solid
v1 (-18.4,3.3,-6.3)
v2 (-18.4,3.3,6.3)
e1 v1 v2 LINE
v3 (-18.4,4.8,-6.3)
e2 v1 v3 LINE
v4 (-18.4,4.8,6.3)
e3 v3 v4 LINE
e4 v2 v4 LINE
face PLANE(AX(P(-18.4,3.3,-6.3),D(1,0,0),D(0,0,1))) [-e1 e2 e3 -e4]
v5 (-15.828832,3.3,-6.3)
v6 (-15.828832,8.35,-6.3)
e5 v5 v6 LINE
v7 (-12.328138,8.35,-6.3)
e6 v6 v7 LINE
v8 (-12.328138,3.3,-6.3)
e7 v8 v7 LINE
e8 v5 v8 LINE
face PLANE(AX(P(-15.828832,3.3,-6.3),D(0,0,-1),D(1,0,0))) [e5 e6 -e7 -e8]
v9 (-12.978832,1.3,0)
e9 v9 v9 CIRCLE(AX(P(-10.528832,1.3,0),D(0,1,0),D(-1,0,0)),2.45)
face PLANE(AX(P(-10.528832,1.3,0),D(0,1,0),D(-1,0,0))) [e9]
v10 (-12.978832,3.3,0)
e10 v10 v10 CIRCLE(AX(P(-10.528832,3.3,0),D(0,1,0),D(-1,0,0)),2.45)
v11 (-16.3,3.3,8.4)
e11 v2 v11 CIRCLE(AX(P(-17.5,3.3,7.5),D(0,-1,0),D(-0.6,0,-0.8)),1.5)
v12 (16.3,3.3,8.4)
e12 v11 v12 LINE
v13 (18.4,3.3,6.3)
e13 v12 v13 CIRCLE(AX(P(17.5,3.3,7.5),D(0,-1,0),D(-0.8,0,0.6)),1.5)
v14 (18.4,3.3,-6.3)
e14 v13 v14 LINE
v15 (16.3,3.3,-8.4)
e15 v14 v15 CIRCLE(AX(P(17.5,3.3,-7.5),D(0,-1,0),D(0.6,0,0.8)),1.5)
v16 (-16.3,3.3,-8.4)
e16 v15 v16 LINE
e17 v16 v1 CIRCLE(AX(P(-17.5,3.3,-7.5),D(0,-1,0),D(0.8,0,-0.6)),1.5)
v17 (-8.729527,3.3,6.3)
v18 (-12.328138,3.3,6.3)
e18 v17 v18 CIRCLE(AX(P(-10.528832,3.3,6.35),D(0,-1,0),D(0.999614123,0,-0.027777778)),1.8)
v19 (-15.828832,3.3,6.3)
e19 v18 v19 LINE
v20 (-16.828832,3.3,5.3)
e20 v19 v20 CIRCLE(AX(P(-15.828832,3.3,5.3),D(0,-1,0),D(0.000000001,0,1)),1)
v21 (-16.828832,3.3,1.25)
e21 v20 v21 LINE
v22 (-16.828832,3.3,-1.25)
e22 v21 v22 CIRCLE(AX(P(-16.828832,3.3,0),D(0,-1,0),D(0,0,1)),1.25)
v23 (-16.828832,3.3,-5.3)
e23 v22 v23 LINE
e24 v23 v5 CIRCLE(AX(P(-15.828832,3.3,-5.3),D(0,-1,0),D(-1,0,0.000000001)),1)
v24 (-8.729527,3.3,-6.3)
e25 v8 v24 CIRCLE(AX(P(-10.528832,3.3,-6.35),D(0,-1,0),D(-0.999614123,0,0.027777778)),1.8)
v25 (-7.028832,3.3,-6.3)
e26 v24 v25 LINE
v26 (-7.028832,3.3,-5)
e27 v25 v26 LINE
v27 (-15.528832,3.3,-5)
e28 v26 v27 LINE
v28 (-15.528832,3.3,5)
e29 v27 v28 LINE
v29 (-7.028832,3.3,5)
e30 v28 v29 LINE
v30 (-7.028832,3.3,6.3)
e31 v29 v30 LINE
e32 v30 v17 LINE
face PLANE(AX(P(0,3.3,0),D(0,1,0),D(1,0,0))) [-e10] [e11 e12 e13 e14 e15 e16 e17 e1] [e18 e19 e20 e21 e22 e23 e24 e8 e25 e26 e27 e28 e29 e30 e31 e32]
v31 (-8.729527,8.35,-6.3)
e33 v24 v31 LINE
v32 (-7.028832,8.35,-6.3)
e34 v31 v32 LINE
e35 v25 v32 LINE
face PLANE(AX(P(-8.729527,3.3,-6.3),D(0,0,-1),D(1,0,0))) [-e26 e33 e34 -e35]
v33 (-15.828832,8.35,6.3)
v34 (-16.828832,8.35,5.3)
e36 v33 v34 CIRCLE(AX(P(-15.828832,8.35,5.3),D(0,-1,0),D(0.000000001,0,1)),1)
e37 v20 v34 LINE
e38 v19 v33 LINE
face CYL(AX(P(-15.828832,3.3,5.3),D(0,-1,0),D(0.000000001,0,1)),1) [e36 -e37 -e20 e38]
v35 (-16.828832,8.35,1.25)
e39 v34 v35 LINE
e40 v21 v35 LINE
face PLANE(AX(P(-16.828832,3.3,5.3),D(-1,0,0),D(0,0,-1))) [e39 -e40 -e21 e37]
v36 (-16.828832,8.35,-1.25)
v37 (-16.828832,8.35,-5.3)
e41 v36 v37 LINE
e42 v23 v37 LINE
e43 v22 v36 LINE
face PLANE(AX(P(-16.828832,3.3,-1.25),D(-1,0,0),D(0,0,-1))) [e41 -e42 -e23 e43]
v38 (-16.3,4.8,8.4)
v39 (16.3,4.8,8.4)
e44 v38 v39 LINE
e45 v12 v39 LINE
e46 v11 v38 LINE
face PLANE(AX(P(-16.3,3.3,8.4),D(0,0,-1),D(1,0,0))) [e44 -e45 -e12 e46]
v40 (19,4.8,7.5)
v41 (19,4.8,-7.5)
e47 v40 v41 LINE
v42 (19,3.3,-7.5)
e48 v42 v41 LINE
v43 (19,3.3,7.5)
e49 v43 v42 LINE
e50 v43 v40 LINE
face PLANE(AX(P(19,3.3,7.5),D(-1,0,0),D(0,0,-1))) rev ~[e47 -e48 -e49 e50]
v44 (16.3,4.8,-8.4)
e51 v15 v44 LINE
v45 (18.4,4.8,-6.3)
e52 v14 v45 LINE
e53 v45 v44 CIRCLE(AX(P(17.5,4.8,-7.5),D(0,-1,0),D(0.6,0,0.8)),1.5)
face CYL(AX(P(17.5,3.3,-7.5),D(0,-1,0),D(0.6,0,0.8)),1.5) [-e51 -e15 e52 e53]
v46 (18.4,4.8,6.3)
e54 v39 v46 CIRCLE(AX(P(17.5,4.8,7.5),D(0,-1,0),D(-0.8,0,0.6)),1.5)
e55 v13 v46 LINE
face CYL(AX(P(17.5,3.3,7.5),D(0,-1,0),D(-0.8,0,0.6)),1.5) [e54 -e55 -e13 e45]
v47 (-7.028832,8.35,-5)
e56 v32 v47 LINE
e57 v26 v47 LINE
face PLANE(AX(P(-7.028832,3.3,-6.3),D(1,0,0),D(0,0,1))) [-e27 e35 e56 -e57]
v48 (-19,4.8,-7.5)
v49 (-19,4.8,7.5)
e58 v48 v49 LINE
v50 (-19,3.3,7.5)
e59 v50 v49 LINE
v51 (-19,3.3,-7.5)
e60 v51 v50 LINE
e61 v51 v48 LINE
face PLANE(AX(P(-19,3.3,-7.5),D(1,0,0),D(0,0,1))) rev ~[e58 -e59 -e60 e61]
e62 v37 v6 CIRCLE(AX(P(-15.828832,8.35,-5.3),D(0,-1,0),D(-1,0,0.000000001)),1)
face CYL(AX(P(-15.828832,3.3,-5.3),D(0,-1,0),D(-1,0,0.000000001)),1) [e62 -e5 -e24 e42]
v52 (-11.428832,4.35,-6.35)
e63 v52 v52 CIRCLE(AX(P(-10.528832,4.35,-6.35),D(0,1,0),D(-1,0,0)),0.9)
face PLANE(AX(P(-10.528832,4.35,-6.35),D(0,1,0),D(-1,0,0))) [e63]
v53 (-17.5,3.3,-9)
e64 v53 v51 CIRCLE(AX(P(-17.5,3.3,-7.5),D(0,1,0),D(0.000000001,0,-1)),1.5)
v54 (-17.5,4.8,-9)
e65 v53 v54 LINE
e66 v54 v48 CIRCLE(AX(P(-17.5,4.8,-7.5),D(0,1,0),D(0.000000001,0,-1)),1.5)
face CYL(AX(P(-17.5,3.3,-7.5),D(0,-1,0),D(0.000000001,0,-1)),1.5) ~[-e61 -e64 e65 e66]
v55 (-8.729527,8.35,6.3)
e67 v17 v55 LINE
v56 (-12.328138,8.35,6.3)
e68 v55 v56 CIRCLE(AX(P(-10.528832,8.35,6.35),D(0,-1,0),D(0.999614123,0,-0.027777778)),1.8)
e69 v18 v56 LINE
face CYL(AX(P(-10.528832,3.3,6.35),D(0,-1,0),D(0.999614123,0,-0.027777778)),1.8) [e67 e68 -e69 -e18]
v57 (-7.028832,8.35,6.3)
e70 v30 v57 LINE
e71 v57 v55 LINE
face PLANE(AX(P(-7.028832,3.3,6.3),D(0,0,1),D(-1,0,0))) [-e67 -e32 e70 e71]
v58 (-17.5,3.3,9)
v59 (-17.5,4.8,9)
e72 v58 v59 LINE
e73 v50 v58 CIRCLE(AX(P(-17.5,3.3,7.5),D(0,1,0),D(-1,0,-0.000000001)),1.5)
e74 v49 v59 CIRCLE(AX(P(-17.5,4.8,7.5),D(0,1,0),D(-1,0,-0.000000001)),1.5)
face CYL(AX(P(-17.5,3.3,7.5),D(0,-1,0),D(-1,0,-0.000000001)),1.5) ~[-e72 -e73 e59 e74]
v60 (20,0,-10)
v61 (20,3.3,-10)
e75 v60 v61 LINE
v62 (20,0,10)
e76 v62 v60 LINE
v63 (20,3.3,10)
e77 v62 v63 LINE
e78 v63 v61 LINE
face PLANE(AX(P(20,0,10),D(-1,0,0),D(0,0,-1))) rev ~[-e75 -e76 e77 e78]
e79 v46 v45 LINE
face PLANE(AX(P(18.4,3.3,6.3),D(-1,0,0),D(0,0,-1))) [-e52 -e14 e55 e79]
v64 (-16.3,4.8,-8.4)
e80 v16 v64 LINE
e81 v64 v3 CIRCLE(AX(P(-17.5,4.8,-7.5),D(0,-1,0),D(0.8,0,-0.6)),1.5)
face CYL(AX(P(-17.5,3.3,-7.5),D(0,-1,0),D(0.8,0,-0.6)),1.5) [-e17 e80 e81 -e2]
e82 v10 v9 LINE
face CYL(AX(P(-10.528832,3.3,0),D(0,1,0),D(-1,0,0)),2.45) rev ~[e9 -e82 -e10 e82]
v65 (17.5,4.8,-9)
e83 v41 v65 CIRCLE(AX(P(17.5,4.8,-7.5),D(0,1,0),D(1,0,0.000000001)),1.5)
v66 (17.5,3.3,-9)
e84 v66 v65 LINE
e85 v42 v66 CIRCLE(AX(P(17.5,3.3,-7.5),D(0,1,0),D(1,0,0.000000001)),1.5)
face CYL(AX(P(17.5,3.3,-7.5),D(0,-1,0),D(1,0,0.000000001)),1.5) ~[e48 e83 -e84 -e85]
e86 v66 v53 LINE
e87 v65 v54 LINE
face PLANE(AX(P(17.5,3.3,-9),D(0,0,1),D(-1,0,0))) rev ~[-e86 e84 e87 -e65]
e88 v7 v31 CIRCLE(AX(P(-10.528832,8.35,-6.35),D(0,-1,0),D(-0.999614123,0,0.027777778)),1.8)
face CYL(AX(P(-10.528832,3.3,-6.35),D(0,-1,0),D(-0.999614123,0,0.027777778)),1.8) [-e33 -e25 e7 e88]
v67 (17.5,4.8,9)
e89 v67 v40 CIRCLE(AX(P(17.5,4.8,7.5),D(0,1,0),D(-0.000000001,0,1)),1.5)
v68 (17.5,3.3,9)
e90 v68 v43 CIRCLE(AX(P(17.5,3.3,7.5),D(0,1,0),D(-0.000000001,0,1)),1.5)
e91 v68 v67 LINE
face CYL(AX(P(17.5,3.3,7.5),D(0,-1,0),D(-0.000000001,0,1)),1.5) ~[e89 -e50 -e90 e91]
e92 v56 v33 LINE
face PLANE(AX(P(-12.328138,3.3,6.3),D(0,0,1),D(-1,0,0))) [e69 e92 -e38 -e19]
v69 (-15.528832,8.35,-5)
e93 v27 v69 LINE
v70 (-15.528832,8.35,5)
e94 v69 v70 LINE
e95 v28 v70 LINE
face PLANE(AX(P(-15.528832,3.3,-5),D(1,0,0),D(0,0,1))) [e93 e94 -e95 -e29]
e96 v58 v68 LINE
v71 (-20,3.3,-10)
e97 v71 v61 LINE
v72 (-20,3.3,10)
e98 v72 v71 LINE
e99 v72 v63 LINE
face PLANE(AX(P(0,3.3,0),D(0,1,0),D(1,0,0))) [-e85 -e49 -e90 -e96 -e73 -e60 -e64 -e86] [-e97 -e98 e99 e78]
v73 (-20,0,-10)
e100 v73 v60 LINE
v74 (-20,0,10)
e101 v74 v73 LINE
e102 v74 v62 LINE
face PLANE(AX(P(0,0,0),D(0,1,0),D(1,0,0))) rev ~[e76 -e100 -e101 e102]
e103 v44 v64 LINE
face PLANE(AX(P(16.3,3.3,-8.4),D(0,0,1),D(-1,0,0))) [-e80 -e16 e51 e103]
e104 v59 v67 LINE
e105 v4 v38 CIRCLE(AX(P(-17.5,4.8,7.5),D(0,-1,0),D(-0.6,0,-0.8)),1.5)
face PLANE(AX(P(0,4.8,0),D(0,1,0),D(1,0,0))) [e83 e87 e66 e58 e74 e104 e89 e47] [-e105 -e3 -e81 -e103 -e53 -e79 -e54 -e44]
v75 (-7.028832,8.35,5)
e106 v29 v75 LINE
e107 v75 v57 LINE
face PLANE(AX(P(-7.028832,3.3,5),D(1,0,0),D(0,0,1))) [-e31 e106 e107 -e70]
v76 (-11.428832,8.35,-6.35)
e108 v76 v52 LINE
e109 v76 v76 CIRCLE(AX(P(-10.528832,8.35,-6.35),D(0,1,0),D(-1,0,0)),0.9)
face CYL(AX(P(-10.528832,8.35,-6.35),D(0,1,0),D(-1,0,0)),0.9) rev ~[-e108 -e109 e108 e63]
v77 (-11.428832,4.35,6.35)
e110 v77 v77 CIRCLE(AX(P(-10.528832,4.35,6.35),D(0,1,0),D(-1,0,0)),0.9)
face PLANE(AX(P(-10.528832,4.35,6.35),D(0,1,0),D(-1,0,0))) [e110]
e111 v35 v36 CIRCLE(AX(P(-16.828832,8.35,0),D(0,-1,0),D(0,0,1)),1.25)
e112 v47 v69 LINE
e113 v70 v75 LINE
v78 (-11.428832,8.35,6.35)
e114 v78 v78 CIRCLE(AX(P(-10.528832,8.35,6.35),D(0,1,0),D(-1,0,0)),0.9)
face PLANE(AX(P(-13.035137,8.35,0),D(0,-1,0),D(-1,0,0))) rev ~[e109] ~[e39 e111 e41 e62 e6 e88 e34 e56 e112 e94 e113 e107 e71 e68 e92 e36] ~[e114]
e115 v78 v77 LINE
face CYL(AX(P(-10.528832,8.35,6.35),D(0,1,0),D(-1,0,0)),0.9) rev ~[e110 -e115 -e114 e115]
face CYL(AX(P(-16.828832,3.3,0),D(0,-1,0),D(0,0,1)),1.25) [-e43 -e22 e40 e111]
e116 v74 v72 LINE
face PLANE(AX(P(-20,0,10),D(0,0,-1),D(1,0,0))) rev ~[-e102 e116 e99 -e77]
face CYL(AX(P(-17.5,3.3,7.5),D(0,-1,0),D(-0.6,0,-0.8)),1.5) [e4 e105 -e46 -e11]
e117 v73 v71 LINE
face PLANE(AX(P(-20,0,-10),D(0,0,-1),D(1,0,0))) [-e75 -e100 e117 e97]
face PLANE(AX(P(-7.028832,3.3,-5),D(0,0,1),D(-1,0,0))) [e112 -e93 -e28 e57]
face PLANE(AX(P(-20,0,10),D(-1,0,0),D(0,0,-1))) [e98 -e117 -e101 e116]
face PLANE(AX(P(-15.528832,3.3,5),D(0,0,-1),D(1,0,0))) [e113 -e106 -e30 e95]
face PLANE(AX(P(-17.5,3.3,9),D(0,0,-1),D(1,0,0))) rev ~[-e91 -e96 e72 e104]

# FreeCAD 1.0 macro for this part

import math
import FreeCAD as App
import Part
import Sketcher
Q = App.Units.Quantity

doc = App.newDocument("Part")
body = doc.addObject("PartDesign::Body", "Body")

# Sketch on XZ plane
sketch1 = doc.addObject("Sketcher::SketchObject", "Sketch")
body.addObject(sketch1)
sketch1.AttachmentSupport = (doc.XZ_Plane, [""])
sketch1.MapMode = "FlatFace"
sketch1.addGeometry([
    Part.LineSegment(App.Vector(-20, -10, 0), App.Vector(-20, 10, 0)),
    Part.LineSegment(App.Vector(-20, 10, 0), App.Vector(20, 10, 0)),
    Part.LineSegment(App.Vector(20, 10, 0), App.Vector(20, -10, 0)),
    Part.LineSegment(App.Vector(20, -10, 0), App.Vector(-20, -10, 0)),
], False)
sketch1.addConstraint([
    Sketcher.Constraint("Coincident", 0, 2, 1, 1),
    Sketcher.Constraint("Coincident", 1, 2, 2, 1),
    Sketcher.Constraint("Coincident", 2, 2, 3, 1),
    Sketcher.Constraint("Coincident", 3, 2, 0, 1),
    Sketcher.Constraint("Vertical", 0),
    Sketcher.Constraint("Horizontal", 1),
    Sketcher.Constraint("Vertical", 2),
    Sketcher.Constraint("Horizontal", 3),
    Sketcher.Constraint("Symmetric", 0, 2, 2, 2, -1, 1),
    Sketcher.Constraint("DistanceX", 1, 1, 1, 2, Q("40 mm")),
    Sketcher.Constraint("DistanceY", 0, 1, 0, 2, Q("20 mm")),
])
pad1 = doc.addObject("PartDesign::Pad", "Pad")
body.addObject(pad1)
pad1.Profile = sketch1
pad1.Length = 3.3
pad1.Reversed = True

# Sketch on XZ plane
sketch2 = doc.addObject("Sketcher::SketchObject", "Sketch001")
body.addObject(sketch2)
sketch2.AttachmentSupport = (doc.XZ_Plane, [""])
sketch2.MapMode = "FlatFace"
sketch2.AttachmentOffset = App.Placement(App.Vector(0, 0, -3.3), App.Rotation())
sketch2.addGeometry([
    Part.LineSegment(App.Vector(-19, -7.5, 0), App.Vector(-19, 7.5, 0)),  # 0
    Part.ArcOfCircle(Part.Circle(App.Vector(-17.5, 7.5, 0), App.Vector(0, 0, 1), 1.5), math.radians(90), math.radians(180)),  # 1
    Part.LineSegment(App.Vector(-17.5, 9, 0), App.Vector(17.5, 9, 0)),  # 2
    Part.ArcOfCircle(Part.Circle(App.Vector(17.5, 7.5, 0), App.Vector(0, 0, 1), 1.5), math.radians(0), math.radians(90)),  # 3
    Part.LineSegment(App.Vector(19, 7.5, 0), App.Vector(19, -7.5, 0)),  # 4
    Part.ArcOfCircle(Part.Circle(App.Vector(17.5, -7.5, 0), App.Vector(0, 0, 1), 1.5), math.radians(-90), math.radians(0)),  # 5
    Part.LineSegment(App.Vector(17.5, -9, 0), App.Vector(-17.5, -9, 0)),  # 6
    Part.ArcOfCircle(Part.Circle(App.Vector(-17.5, -7.5, 0), App.Vector(0, 0, 1), 1.5), math.radians(180), math.radians(270)),  # 7
    Part.LineSegment(App.Vector(-18.4, 6.3, 0), App.Vector(-18.4, -6.3, 0)),  # 8
    Part.ArcOfCircle(Part.Circle(App.Vector(-17.5, -7.5, 0), App.Vector(0, 0, 1), 1.5), math.radians(-37), math.radians(127)),  # 9
    Part.LineSegment(App.Vector(-16.3, -8.4, 0), App.Vector(16.3, -8.4, 0)),  # 10
    Part.ArcOfCircle(Part.Circle(App.Vector(17.5, -7.5, 0), App.Vector(0, 0, 1), 1.5), math.radians(53), math.radians(217)),  # 11
    Part.LineSegment(App.Vector(18.4, -6.3, 0), App.Vector(18.4, 6.3, 0)),  # 12
    Part.ArcOfCircle(Part.Circle(App.Vector(17.5, 7.5, 0), App.Vector(0, 0, 1), 1.5), math.radians(143), math.radians(307)),  # 13
    Part.LineSegment(App.Vector(16.3, 8.4, 0), App.Vector(-16.3, 8.4, 0)),  # 14
    Part.ArcOfCircle(Part.Circle(App.Vector(-17.5, 7.5, 0), App.Vector(0, 0, 1), 1.5), math.radians(-127), math.radians(37)),  # 15
], False)
sketch2.addConstraint([
    Sketcher.Constraint("Tangent", 0, 2, 1, 2),
    Sketcher.Constraint("Tangent", 1, 1, 2, 1),
    Sketcher.Constraint("Tangent", 2, 2, 3, 2),
    Sketcher.Constraint("Tangent", 3, 1, 4, 1),
    Sketcher.Constraint("Tangent", 4, 2, 5, 2),
    Sketcher.Constraint("Tangent", 5, 1, 6, 1),
    Sketcher.Constraint("Tangent", 6, 2, 7, 2),
    Sketcher.Constraint("Tangent", 7, 1, 0, 1),
    Sketcher.Constraint("Coincident", 8, 2, 9, 2),
    Sketcher.Constraint("Coincident", 9, 1, 10, 1),
    Sketcher.Constraint("Coincident", 10, 2, 11, 2),
    Sketcher.Constraint("Coincident", 11, 1, 12, 1),
    Sketcher.Constraint("Coincident", 12, 2, 13, 2),
    Sketcher.Constraint("Coincident", 13, 1, 14, 1),
    Sketcher.Constraint("Coincident", 14, 2, 15, 2),
    Sketcher.Constraint("Coincident", 15, 1, 8, 1),
    Sketcher.Constraint("Vertical", 0),
    Sketcher.Constraint("Horizontal", 2),
    Sketcher.Constraint("Vertical", 4),
    Sketcher.Constraint("Horizontal", 6),
    Sketcher.Constraint("Vertical", 8),
    Sketcher.Constraint("Horizontal", 10),
    Sketcher.Constraint("Vertical", 12),
    Sketcher.Constraint("Horizontal", 14),
    Sketcher.Constraint("Coincident", 9, 3, 7, 3),
    Sketcher.Constraint("Coincident", 11, 3, 5, 3),
    Sketcher.Constraint("Coincident", 13, 3, 3, 3),
    Sketcher.Constraint("Coincident", 15, 3, 1, 3),
    Sketcher.Constraint("Equal", 1, 3),
    Sketcher.Constraint("Equal", 3, 5),
    Sketcher.Constraint("Equal", 5, 7),
    Sketcher.Constraint("Equal", 7, 9),
    Sketcher.Constraint("Equal", 9, 11),
    Sketcher.Constraint("Equal", 11, 13),
    Sketcher.Constraint("Equal", 13, 15),
    Sketcher.Constraint("Symmetric", 1, 3, 5, 3, -1, 1),
    Sketcher.Constraint("Horizontal", 8, 2, 11, 1),
    Sketcher.Constraint("Vertical", 10, 2, 13, 1),
    Sketcher.Constraint("Radius", 1, Q("1.5 mm")),
    Sketcher.Constraint("DistanceX", 2, 1, 2, 2, Q("35 mm")),
    Sketcher.Constraint("DistanceY", 0, 1, 0, 2, Q("15 mm")),
    Sketcher.Constraint("DistanceX", 10, 1, 10, 2, Q("32.6 mm")),
    Sketcher.Constraint("DistanceY", 8, 2, 8, 1, Q("12.6 mm")),
])
pad2 = doc.addObject("PartDesign::Pad", "Pad001")
body.addObject(pad2)
pad2.Profile = sketch2
pad2.Length = 1.5
pad2.Reversed = True

# Sketch on XZ plane
sketch3 = doc.addObject("Sketcher::SketchObject", "Sketch002")
body.addObject(sketch3)
sketch3.AttachmentSupport = (doc.XZ_Plane, [""])
sketch3.MapMode = "FlatFace"
sketch3.AttachmentOffset = App.Placement(App.Vector(0, 0, -3.3), App.Rotation())
sketch3.addGeometry(Part.Circle(App.Vector(-10.5, 0, 0), App.Vector(0, 0, 1), 2.5), False)
sketch3.addConstraint([
    Sketcher.Constraint("PointOnObject", 0, 3, -1),
    Sketcher.Constraint("Diameter", 0, Q("4.9 mm")),
    Sketcher.Constraint("DistanceX", 0, 3, -1, 1, Q("10.528832 mm")),
])
pocket1 = doc.addObject("PartDesign::Pocket", "Pocket")
body.addObject(pocket1)
pocket1.Profile = sketch3
pocket1.Length = 2
pocket1.Reversed = True

# Sketch on XZ plane
sketch4 = doc.addObject("Sketcher::SketchObject", "Sketch003")
body.addObject(sketch4)
sketch4.AttachmentSupport = (doc.XZ_Plane, [""])
sketch4.MapMode = "FlatFace"
sketch4.AttachmentOffset = App.Placement(App.Vector(0, 0, -3.3), App.Rotation())
sketch4.addGeometry([
    Part.LineSegment(App.Vector(-7, 5, 0), App.Vector(-15.5, 5, 0)),  # 0
    Part.LineSegment(App.Vector(-15.5, 5, 0), App.Vector(-15.5, -5, 0)),  # 1
    Part.LineSegment(App.Vector(-15.5, -5, 0), App.Vector(-7, -5, 0)),  # 2
    Part.LineSegment(App.Vector(-7, -5, 0), App.Vector(-7, -6.3, 0)),  # 3
    Part.LineSegment(App.Vector(-7, -6.3, 0), App.Vector(-8.7, -6.3, 0)),  # 4
    Part.ArcOfCircle(Part.Circle(App.Vector(-10.5, -6.3, 0), App.Vector(0, 0, 1), 1.8), math.radians(178), math.radians(362)),  # 5
    Part.LineSegment(App.Vector(-12.3, -6.3, 0), App.Vector(-15.8, -6.3, 0)),  # 6
    Part.ArcOfCircle(Part.Circle(App.Vector(-15.8, -5.3, 0), App.Vector(0, 0, 1), 1), math.radians(180), math.radians(270)),  # 7
    Part.LineSegment(App.Vector(-16.8, -5.3, 0), App.Vector(-16.8, -1.2, 0)),  # 8
    Part.ArcOfCircle(Part.Circle(App.Vector(-16.8, 0, 0), App.Vector(0, 0, 1), 1.2), math.radians(90), math.radians(270)),  # 9
    Part.LineSegment(App.Vector(-16.8, 1.2, 0), App.Vector(-16.8, 5.3, 0)),  # 10
    Part.ArcOfCircle(Part.Circle(App.Vector(-15.8, 5.3, 0), App.Vector(0, 0, 1), 1), math.radians(90), math.radians(180)),  # 11
    Part.LineSegment(App.Vector(-15.8, 6.3, 0), App.Vector(-12.3, 6.3, 0)),  # 12
    Part.ArcOfCircle(Part.Circle(App.Vector(-10.5, 6.3, 0), App.Vector(0, 0, 1), 1.8), math.radians(-2), math.radians(182)),  # 13
    Part.LineSegment(App.Vector(-8.7, 6.3, 0), App.Vector(-7, 6.3, 0)),  # 14
    Part.LineSegment(App.Vector(-7, 6.3, 0), App.Vector(-7, 5, 0)),  # 15
], False)
sketch4.addConstraint([
    Sketcher.Constraint("Coincident", 0, 2, 1, 1),
    Sketcher.Constraint("Coincident", 1, 2, 2, 1),
    Sketcher.Constraint("Coincident", 2, 2, 3, 1),
    Sketcher.Constraint("Coincident", 3, 2, 4, 1),
    Sketcher.Constraint("Coincident", 4, 2, 5, 2),
    Sketcher.Constraint("Coincident", 5, 1, 6, 1),
    Sketcher.Constraint("Tangent", 6, 2, 7, 2),
    Sketcher.Constraint("Tangent", 7, 1, 8, 1),
    Sketcher.Constraint("Coincident", 8, 2, 9, 2),
    Sketcher.Constraint("Coincident", 9, 1, 10, 1),
    Sketcher.Constraint("Tangent", 10, 2, 11, 2),
    Sketcher.Constraint("Tangent", 11, 1, 12, 1),
    Sketcher.Constraint("Coincident", 12, 2, 13, 2),
    Sketcher.Constraint("Coincident", 13, 1, 14, 1),
    Sketcher.Constraint("Coincident", 14, 2, 15, 1),
    Sketcher.Constraint("Coincident", 15, 2, 0, 1),
    Sketcher.Constraint("Horizontal", 0),
    Sketcher.Constraint("Vertical", 1),
    Sketcher.Constraint("Horizontal", 2),
    Sketcher.Constraint("Vertical", 3),
    Sketcher.Constraint("Horizontal", 4),
    Sketcher.Constraint("Horizontal", 6),
    Sketcher.Constraint("Vertical", 8),
    Sketcher.Constraint("Vertical", 10),
    Sketcher.Constraint("Horizontal", 12),
    Sketcher.Constraint("Horizontal", 14),
    Sketcher.Constraint("Vertical", 15),
    Sketcher.Constraint("Equal", 7, 11),
    Sketcher.Constraint("Equal", 5, 13),
    Sketcher.Constraint("Symmetric", 7, 3, 11, 3, -1),
    Sketcher.Constraint("Symmetric", 5, 3, 13, 3, -1),
    Sketcher.Constraint("Symmetric", 3, 2, 14, 2, -1),
    Sketcher.Constraint("PointOnObject", 9, 3, -1),
    Sketcher.Constraint("Horizontal", 4, 2, 5, 1),
    Sketcher.Constraint("Vertical", 9, 3, 7, 1),
    Sketcher.Constraint("Equal", 3, 15),
    Sketcher.Constraint("Radius", 7, Q("1 mm")),
    Sketcher.Constraint("Radius", 5, Q("1.8 mm")),
    Sketcher.Constraint("DistanceY", 1, 2, 1, 1, Q("10 mm")),
    Sketcher.Constraint("Radius", 9, Q("1.25 mm")),
    Sketcher.Constraint("DistanceX", 0, 2, 0, 1, Q("8.5 mm")),
    Sketcher.Constraint("DistanceY", 3, 2, 3, 1, Q("1.3 mm")),
    Sketcher.Constraint("DistanceX", 0, 2, 13, 3, Q("5 mm")),
    Sketcher.Constraint("DistanceX", 7, 3, 5, 3, Q("5.3 mm")),
    Sketcher.Constraint("DistanceY", 5, 3, 13, 3, Q("12.7 mm")),
    Sketcher.Constraint("DistanceX", 5, 3, -1, 1, Q("10.528832 mm")),
])
pad3 = doc.addObject("PartDesign::Pad", "Pad002")
body.addObject(pad3)
pad3.Profile = sketch4
pad3.Length = 5.05
pad3.Reversed = True

# Sketch on XZ plane
sketch5 = doc.addObject("Sketcher::SketchObject", "Sketch004")
body.addObject(sketch5)
sketch5.AttachmentSupport = (doc.XZ_Plane, [""])
sketch5.MapMode = "FlatFace"
sketch5.AttachmentOffset = App.Placement(App.Vector(0, 0, -8.35), App.Rotation())
sketch5.addGeometry([
    Part.Circle(App.Vector(-10.5, 6.3, 0), App.Vector(0, 0, 1), 0.9),
    Part.Circle(App.Vector(-10.5, -6.3, 0), App.Vector(0, 0, 1), 0.9),
], False)
sketch5.addConstraint([
    Sketcher.Constraint("Equal", 0, 1),
    Sketcher.Constraint("Symmetric", 0, 3, 1, 3, -1),
    Sketcher.Constraint("Diameter", 0, Q("1.8 mm")),
    Sketcher.Constraint("DistanceY", 1, 3, 0, 3, Q("12.7 mm")),
    Sketcher.Constraint("DistanceX", 0, 3, -1, 1, Q("10.528832 mm")),
])
pocket2 = doc.addObject("PartDesign::Pocket", "Pocket001")
body.addObject(pocket2)
pocket2.Profile = sketch5
pocket2.Length = 4
pocket2.Reversed = True

doc.recompute()
